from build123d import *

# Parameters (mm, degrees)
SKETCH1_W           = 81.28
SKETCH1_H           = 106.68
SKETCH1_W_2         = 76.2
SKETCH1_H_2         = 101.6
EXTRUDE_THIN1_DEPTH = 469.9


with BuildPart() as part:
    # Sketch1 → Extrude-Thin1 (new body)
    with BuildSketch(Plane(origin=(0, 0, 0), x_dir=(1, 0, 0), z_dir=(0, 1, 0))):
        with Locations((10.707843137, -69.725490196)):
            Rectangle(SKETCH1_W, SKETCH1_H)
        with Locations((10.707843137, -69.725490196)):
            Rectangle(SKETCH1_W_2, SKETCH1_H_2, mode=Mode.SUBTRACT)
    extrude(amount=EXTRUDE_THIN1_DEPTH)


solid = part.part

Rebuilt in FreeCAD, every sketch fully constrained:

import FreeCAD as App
import Part
import Sketcher
Q = App.Units.Quantity

doc = App.newDocument("Part")
body = doc.addObject("PartDesign::Body", "Body")

# Sketch on XZ plane
sketch1 = doc.addObject("Sketcher::SketchObject", "Sketch")
body.addObject(sketch1)
sketch1.AttachmentSupport = (doc.XZ_Plane, [""])
sketch1.MapMode = "FlatFace"
sketch1.addGeometry([
    Part.LineSegment(App.Vector(-30, 16, 0), App.Vector(-30, 123, 0)),  # 0
    Part.LineSegment(App.Vector(-30, 123, 0), App.Vector(51, 123, 0)),  # 1
    Part.LineSegment(App.Vector(51, 123, 0), App.Vector(51, 16, 0)),  # 2
    Part.LineSegment(App.Vector(51, 16, 0), App.Vector(-30, 16, 0)),  # 3
    Part.LineSegment(App.Vector(49, 121, 0), App.Vector(-27, 121, 0)),  # 4
    Part.LineSegment(App.Vector(-27, 121, 0), App.Vector(-27, 19, 0)),  # 5
    Part.LineSegment(App.Vector(-27, 19, 0), App.Vector(49, 19, 0)),  # 6
    Part.LineSegment(App.Vector(49, 19, 0), App.Vector(49, 121, 0)),  # 7
], False)
sketch1.addConstraint([
    Sketcher.Constraint("Coincident", 0, 2, 1, 1),
    Sketcher.Constraint("Coincident", 1, 2, 2, 1),
    Sketcher.Constraint("Coincident", 2, 2, 3, 1),
    Sketcher.Constraint("Coincident", 3, 2, 0, 1),
    Sketcher.Constraint("Coincident", 4, 2, 5, 1),
    Sketcher.Constraint("Coincident", 5, 2, 6, 1),
    Sketcher.Constraint("Coincident", 6, 2, 7, 1),
    Sketcher.Constraint("Coincident", 7, 2, 4, 1),
    Sketcher.Constraint("Vertical", 0),
    Sketcher.Constraint("Horizontal", 1),
    Sketcher.Constraint("Vertical", 2),
    Sketcher.Constraint("Horizontal", 3),
    Sketcher.Constraint("Horizontal", 4),
    Sketcher.Constraint("Vertical", 5),
    Sketcher.Constraint("Horizontal", 6),
    Sketcher.Constraint("Vertical", 7),
    Sketcher.Constraint("DistanceX", 4, 2, 4, 1, Q("3 in")),
    Sketcher.Constraint("DistanceY", 5, 2, 5, 1, Q("4 in")),
    Sketcher.Constraint("DistanceX", 1, 1, 1, 2, Q("3.2 in")),
    Sketcher.Constraint("DistanceY", 0, 1, 0, 2, Q("4.2 in")),
    Sketcher.Constraint("DistanceX", 0, 2, 4, 2, Q("0.1 in")),
    Sketcher.Constraint("DistanceY", 4, 2, 0, 2, Q("0.1 in")),
    Sketcher.Constraint("DistanceY", -1, 1, 0, 2, 123.06549),
    Sketcher.Constraint("DistanceX", 0, 2, -1, 1, 29.932157),
])
pad1 = doc.addObject("PartDesign::Pad", "Pad")
body.addObject(pad1)
pad1.Profile = sketch1
pad1.Length = Q("18.5 in")
pad1.Reversed = True

doc.recompute()
